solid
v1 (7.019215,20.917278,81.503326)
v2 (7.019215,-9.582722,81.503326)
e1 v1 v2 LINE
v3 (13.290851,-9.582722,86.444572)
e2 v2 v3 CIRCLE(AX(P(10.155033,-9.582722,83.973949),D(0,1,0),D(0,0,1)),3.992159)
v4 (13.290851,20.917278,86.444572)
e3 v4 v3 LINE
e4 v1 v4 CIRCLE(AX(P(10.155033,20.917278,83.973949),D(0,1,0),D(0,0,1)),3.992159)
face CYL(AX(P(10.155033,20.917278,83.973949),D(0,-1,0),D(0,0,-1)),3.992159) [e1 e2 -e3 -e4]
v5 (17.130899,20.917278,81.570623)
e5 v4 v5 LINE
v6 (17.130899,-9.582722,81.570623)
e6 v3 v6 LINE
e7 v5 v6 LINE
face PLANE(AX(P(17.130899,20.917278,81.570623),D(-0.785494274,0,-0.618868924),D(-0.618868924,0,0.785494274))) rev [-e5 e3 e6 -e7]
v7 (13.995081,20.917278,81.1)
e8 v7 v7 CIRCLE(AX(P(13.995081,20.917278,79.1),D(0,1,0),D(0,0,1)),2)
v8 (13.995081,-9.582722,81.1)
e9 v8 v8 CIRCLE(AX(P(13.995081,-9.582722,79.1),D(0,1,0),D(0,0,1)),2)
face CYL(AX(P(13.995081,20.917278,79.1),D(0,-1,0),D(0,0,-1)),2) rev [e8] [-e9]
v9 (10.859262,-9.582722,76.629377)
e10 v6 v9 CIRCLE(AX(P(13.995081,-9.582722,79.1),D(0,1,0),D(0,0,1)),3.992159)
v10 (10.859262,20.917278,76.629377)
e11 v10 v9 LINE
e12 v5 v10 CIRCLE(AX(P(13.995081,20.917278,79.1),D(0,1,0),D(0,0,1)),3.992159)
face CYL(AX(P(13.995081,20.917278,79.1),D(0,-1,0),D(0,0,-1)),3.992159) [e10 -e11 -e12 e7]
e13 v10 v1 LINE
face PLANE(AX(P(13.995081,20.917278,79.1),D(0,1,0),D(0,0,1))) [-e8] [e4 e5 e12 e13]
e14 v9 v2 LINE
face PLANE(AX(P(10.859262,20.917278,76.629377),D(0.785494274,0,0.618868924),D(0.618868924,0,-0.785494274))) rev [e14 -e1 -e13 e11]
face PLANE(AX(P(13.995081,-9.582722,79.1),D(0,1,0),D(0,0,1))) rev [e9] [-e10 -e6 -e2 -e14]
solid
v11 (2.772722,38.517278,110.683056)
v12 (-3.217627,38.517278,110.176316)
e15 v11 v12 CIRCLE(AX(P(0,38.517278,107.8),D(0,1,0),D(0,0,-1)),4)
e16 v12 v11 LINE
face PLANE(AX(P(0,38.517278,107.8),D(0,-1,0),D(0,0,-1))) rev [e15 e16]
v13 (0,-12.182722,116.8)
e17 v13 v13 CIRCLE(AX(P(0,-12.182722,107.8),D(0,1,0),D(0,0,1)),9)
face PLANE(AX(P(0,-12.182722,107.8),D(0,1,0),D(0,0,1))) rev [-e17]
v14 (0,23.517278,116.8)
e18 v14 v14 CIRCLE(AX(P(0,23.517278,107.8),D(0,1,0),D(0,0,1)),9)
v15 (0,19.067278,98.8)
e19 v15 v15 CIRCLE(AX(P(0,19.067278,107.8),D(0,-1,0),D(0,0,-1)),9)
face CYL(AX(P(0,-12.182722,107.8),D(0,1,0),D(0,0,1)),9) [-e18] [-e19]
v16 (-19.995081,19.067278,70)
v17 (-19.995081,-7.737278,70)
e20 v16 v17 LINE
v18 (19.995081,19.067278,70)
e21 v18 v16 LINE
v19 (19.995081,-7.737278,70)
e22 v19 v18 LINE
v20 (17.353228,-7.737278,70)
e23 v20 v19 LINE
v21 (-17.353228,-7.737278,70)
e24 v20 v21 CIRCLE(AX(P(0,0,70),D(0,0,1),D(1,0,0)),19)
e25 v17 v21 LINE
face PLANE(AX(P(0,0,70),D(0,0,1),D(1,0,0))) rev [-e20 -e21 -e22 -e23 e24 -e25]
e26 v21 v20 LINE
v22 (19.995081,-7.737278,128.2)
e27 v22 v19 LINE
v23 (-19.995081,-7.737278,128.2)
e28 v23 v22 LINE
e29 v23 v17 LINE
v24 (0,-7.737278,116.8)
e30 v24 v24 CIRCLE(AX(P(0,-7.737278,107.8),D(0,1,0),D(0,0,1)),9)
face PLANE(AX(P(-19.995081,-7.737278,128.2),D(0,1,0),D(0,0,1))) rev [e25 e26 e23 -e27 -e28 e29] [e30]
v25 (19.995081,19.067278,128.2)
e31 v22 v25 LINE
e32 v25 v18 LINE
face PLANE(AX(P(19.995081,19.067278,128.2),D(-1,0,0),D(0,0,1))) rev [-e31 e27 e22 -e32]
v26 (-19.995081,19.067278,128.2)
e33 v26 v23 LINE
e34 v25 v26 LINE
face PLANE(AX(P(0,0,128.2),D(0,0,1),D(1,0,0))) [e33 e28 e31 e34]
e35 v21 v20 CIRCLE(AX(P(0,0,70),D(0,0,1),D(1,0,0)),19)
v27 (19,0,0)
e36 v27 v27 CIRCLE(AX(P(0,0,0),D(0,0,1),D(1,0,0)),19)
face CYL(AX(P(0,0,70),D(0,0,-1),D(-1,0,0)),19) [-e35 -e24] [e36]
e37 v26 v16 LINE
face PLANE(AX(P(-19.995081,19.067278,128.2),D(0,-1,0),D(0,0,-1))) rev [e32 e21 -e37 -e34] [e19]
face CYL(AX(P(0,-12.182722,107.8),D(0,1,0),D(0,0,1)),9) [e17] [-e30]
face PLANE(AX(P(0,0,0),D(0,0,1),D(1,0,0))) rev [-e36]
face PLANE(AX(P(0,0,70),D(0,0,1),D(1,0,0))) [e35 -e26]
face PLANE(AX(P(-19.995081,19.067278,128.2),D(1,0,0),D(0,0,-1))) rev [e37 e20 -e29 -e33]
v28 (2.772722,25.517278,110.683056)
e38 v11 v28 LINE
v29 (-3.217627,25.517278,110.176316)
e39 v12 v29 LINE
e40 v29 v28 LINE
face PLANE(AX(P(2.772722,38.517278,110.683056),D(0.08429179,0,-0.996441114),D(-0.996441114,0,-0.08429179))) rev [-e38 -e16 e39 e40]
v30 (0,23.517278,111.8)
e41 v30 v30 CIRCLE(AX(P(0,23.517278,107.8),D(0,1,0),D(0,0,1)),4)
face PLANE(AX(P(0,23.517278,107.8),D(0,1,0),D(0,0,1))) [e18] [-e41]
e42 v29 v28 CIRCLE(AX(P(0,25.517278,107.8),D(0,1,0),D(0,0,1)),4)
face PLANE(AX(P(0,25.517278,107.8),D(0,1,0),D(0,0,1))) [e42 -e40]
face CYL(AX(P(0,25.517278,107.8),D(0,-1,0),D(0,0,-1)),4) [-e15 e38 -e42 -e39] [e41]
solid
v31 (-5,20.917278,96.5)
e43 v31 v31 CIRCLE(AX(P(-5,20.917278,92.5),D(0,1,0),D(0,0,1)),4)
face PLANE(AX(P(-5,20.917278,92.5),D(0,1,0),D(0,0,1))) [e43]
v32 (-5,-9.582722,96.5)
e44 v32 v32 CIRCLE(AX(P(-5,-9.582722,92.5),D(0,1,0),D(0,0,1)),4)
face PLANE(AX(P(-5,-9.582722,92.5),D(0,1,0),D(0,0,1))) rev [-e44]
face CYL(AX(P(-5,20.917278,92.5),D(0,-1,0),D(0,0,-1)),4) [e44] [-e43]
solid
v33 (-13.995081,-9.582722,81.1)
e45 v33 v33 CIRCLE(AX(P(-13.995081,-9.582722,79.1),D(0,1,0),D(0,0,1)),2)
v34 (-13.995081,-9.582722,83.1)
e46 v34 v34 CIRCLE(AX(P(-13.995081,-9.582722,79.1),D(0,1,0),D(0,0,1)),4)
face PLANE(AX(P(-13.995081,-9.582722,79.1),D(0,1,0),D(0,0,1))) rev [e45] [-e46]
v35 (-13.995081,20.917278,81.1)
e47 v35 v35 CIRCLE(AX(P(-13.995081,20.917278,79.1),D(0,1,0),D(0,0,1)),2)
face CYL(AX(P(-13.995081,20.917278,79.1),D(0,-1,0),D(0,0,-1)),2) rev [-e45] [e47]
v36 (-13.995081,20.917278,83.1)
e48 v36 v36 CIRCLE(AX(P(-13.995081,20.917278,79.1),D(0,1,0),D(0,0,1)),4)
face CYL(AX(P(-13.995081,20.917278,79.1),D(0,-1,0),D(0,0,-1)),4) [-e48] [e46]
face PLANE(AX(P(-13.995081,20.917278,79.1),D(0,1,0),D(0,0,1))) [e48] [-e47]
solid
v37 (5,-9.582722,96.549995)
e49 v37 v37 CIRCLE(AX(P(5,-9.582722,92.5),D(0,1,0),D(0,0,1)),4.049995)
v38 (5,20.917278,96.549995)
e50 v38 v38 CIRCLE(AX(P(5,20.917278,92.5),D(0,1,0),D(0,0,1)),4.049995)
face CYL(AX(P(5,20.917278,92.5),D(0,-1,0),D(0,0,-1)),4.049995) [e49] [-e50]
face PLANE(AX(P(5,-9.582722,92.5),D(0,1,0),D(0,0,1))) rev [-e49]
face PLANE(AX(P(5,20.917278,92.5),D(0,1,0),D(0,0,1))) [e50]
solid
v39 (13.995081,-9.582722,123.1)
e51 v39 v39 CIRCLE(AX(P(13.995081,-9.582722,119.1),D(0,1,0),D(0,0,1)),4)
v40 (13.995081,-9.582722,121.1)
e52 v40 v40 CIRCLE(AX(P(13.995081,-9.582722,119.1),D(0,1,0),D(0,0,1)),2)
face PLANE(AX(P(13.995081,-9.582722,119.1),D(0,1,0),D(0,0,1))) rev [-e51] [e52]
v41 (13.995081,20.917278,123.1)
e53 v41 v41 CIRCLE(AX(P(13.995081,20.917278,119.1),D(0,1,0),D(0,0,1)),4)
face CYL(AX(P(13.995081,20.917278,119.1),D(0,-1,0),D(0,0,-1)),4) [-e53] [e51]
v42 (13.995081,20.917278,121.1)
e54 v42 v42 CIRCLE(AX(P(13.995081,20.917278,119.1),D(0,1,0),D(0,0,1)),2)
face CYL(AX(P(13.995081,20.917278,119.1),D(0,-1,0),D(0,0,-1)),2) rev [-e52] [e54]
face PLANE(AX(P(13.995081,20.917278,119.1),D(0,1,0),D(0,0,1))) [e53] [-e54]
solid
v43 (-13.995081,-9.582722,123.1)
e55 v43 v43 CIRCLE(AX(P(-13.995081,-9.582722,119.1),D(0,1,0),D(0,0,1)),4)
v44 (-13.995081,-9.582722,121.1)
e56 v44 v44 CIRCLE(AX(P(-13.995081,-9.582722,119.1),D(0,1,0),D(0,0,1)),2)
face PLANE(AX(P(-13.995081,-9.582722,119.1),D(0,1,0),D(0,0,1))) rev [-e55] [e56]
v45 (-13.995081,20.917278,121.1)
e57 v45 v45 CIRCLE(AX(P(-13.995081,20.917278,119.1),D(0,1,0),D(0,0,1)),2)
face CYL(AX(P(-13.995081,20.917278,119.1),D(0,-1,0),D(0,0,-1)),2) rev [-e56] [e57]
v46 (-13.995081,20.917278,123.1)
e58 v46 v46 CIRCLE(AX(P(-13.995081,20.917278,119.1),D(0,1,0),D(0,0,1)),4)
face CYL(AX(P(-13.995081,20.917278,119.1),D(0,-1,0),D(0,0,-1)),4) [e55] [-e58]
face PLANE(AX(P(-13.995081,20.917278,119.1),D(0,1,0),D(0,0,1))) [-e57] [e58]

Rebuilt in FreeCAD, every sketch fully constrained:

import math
import FreeCAD as App
import Part
import Sketcher

V = App.Vector


def add_polygon(sketch, points):
    """Adds a closed chain of lines whose ends are joined by coincident constraints."""
    first, n = sketch.GeometryCount, len(points)
    for a, b in zip(points, points[1:] + points[:1]):
        sketch.addGeometry(Part.LineSegment(App.Vector(*a, 0), App.Vector(*b, 0)), False)
    for i in range(n):
        sketch.addConstraint(Sketcher.Constraint("Coincident", first + i, 2, first + (i + 1) % n, 1))

doc = App.newDocument("Part")
body = doc.addObject("PartDesign::Body", "Body")

# Sketch on XY plane
sketch1 = body.newObject("Sketcher::SketchObject", "Sketch")
sketch1.AttachmentSupport = (doc.getObject("XY_Plane"), [""])
sketch1.MapMode = "FlatFace"
sketch1.addGeometry(Part.Circle(V(0, 0, 0), V(0, 0, 1), 19), False)
sketch1.addConstraint(Sketcher.Constraint("Coincident", 0, 3, -1, 1))
sketch1.addConstraint(Sketcher.Constraint("Diameter", 0, 38.0))
pad1 = body.newObject("PartDesign::Pad", "Pad")
pad1.Profile = sketch1
pad1.Length = 70

# Sketch on XY plane
sketch2 = body.newObject("Sketcher::SketchObject", "Sketch001")
sketch2.AttachmentSupport = (doc.getObject("XY_Plane"), [""])
sketch2.MapMode = "FlatFace"
sketch2.AttachmentOffset = App.Placement(V(0, 0, 70), App.Rotation())
add_polygon(sketch2, [(-20, 19), (-20, -8), (20, -8), (20, 19)])  # lines 0-3
sketch2.addConstraint(Sketcher.Constraint("Vertical", 0))
sketch2.addConstraint(Sketcher.Constraint("Horizontal", 1))
sketch2.addConstraint(Sketcher.Constraint("Vertical", 2))
sketch2.addConstraint(Sketcher.Constraint("Horizontal", 3))
sketch2.addConstraint(Sketcher.Constraint("DistanceX", 1, 1, 1, 2, 39.990162))
sketch2.addConstraint(Sketcher.Constraint("DistanceY", 0, 2, 0, 1, 26.804556))
sketch2.addConstraint(Sketcher.Constraint("DistanceX", 0, 2, -1, 1, 19.995081))
sketch2.addConstraint(Sketcher.Constraint("DistanceY", -1, 1, 2, 2, 19.067278))
pad2 = body.newObject("PartDesign::Pad", "Pad001")
pad2.Profile = sketch2
pad2.Length = 58.2
body2 = doc.addObject("PartDesign::Body", "Body001")

# Sketch on XZ plane
sketch3 = body2.newObject("Sketcher::SketchObject", "Sketch002")
sketch3.AttachmentSupport = (doc.getObject("XZ_Plane001"), [""])
sketch3.MapMode = "FlatFace"
sketch3.AttachmentOffset = App.Placement(V(0, 0, -19.067278), App.Rotation())
sketch3.addGeometry(Part.Circle(V(14, 119.1, 0), V(0, 0, 1), 4), False)
sketch3.addGeometry(Part.Circle(V(14, 119.1, 0), V(0, 0, 1), 2), False)
sketch3.addConstraint(Sketcher.Constraint("Coincident", 1, 3, 0, 3))
sketch3.addConstraint(Sketcher.Constraint("Diameter", 0, 8.0))
sketch3.addConstraint(Sketcher.Constraint("Diameter", 1, 4.0))
sketch3.addConstraint(Sketcher.Constraint("DistanceY", -1, 1, 0, 3, 119.1))
sketch3.addConstraint(Sketcher.Constraint("DistanceX", -1, 1, 0, 3, 13.995081))
pad3 = body2.newObject("PartDesign::Pad", "Pad002")
pad3.Profile = sketch3
pad3.Type = "TwoLengths"
pad3.Length = 1.85
pad3.Length2 = 28.65
pad3.Reversed = True
body3 = doc.addObject("PartDesign::Body", "Body002")

# Sketch on XZ plane
sketch4 = body3.newObject("Sketcher::SketchObject", "Sketch003")
sketch4.AttachmentSupport = (doc.getObject("XZ_Plane002"), [""])
sketch4.MapMode = "FlatFace"
sketch4.AttachmentOffset = App.Placement(V(0, 0, -19.067278), App.Rotation())
sketch4.addGeometry(Part.Circle(V(-14, 119.1, 0), V(0, 0, 1), 4), False)
sketch4.addGeometry(Part.Circle(V(-14, 119.1, 0), V(0, 0, 1), 2), False)
sketch4.addConstraint(Sketcher.Constraint("Coincident", 1, 3, 0, 3))
sketch4.addConstraint(Sketcher.Constraint("Diameter", 0, 8.0))
sketch4.addConstraint(Sketcher.Constraint("Diameter", 1, 4.0))
sketch4.addConstraint(Sketcher.Constraint("DistanceY", -1, 1, 0, 3, 119.1))
sketch4.addConstraint(Sketcher.Constraint("DistanceX", 0, 3, -1, 1, 13.995081))
pad4 = body3.newObject("PartDesign::Pad", "Pad003")
pad4.Profile = sketch4
pad4.Type = "TwoLengths"
pad4.Length = 1.85
pad4.Length2 = 28.65
pad4.Reversed = True
body4 = doc.addObject("PartDesign::Body", "Body003")

# Sketch on XZ plane
sketch5 = body4.newObject("Sketcher::SketchObject", "Sketch004")
sketch5.AttachmentSupport = (doc.getObject("XZ_Plane003"), [""])
sketch5.MapMode = "FlatFace"
sketch5.AttachmentOffset = App.Placement(V(0, 0, -19.067278), App.Rotation())
sketch5.addGeometry(Part.Circle(V(-14, 79.1, 0), V(0, 0, 1), 4), False)
sketch5.addGeometry(Part.Circle(V(-14, 79.1, 0), V(0, 0, 1), 2), False)
sketch5.addConstraint(Sketcher.Constraint("Coincident", 1, 3, 0, 3))
sketch5.addConstraint(Sketcher.Constraint("Diameter", 0, 8.0))
sketch5.addConstraint(Sketcher.Constraint("Diameter", 1, 4.0))
sketch5.addConstraint(Sketcher.Constraint("DistanceY", -1, 1, 0, 3, 79.1))
sketch5.addConstraint(Sketcher.Constraint("DistanceX", 0, 3, -1, 1, 13.995081))
pad5 = body4.newObject("PartDesign::Pad", "Pad004")
pad5.Profile = sketch5
pad5.Type = "TwoLengths"
pad5.Length = 1.85
pad5.Length2 = 28.65
pad5.Reversed = True
body5 = doc.addObject("PartDesign::Body", "Body004")

# Sketch on XZ plane
sketch6 = body5.newObject("Sketcher::SketchObject", "Sketch005")
sketch6.AttachmentSupport = (doc.getObject("XZ_Plane004"), [""])
sketch6.MapMode = "FlatFace"
sketch6.AttachmentOffset = App.Placement(V(0, 0, -19.067278), App.Rotation())
sketch6.addGeometry(Part.Circle(V(0, 108, 0), V(0, 0, 1), 9), False)
sketch6.addConstraint(Sketcher.Constraint("PointOnObject", 0, 3, -2))
sketch6.addConstraint(Sketcher.Constraint("Diameter", 0, 18.0))
sketch6.addConstraint(Sketcher.Constraint("DistanceY", -1, 1, 0, 3, 107.8))
pad6 = body5.newObject("PartDesign::Pad", "Pad005")
pad6.Profile = sketch6
pad6.Type = "TwoLengths"
pad6.Length = 1.85
pad6.Length2 = 28.65
pad6.Reversed = True
body6 = doc.addObject("PartDesign::Body", "Body005")

# Sketch on XZ plane
sketch7 = body6.newObject("Sketcher::SketchObject", "Sketch006")
sketch7.AttachmentSupport = (doc.getObject("XZ_Plane005"), [""])
sketch7.MapMode = "FlatFace"
sketch7.AttachmentOffset = App.Placement(V(0, 0, -19.067278), App.Rotation())
sketch7.addGeometry(Part.Circle(V(5, 92.5, 0), V(0, 0, 1), 4), False)
sketch7.addConstraint(Sketcher.Constraint("DistanceX", -1, 1, 0, 3, 5.0))
sketch7.addConstraint(Sketcher.Constraint("DistanceY", -1, 1, 0, 3, 92.5))
sketch7.addConstraint(Sketcher.Constraint("Diameter", 0, 8.09999))
pad7 = body6.newObject("PartDesign::Pad", "Pad006")
pad7.Profile = sketch7
pad7.Type = "TwoLengths"
pad7.Length = 1.85
pad7.Length2 = 28.65
pad7.Reversed = True
body7 = doc.addObject("PartDesign::Body", "Body006")

# Sketch on XZ plane
sketch8 = body7.newObject("Sketcher::SketchObject", "Sketch007")
sketch8.AttachmentSupport = (doc.getObject("XZ_Plane006"), [""])
sketch8.MapMode = "FlatFace"
sketch8.AttachmentOffset = App.Placement(V(0, 0, -19.067278), App.Rotation())
sketch8.addGeometry(Part.Circle(V(-5, 92.5, 0), V(0, 0, 1), 4), False)
sketch8.addConstraint(Sketcher.Constraint("Diameter", 0, 8.0))
sketch8.addConstraint(Sketcher.Constraint("DistanceX", 0, 3, -1, 1, 5.0))
sketch8.addConstraint(Sketcher.Constraint("DistanceY", -1, 1, 0, 3, 92.5))
pad8 = body7.newObject("PartDesign::Pad", "Pad007")
pad8.Profile = sketch8
pad8.Type = "TwoLengths"
pad8.Length = 1.85
pad8.Length2 = 28.65
pad8.Reversed = True
body8 = doc.addObject("PartDesign::Body", "Body007")

# Sketch on XZ plane
sketch9 = body8.newObject("Sketcher::SketchObject", "Sketch008")
sketch9.AttachmentSupport = (doc.getObject("XZ_Plane007"), [""])
sketch9.MapMode = "FlatFace"
sketch9.AttachmentOffset = App.Placement(V(0, 0, -19.067278), App.Rotation())
sketch9.addGeometry(Part.LineSegment(V(13.3, 86.4, 0), V(17.1, 81.6, 0)), False)
sketch9.addGeometry(Part.ArcOfCircle(Part.Circle(V(14, 79.1, 0), V(0, 0, 1), 4), math.radians(-142), math.radians(38)), False)
sketch9.addGeometry(Part.LineSegment(V(10.9, 76.6, 0), V(7, 81.5, 0)), False)
sketch9.addGeometry(Part.ArcOfCircle(Part.Circle(V(10.2, 84, 0), V(0, 0, 1), 4), math.radians(38), math.radians(218)), False)
sketch9.addGeometry(Part.Circle(V(14, 79.1, 0), V(0, 0, 1), 2), False)
sketch9.addConstraint(Sketcher.Constraint("Tangent", 0, 2, 1, 2))
sketch9.addConstraint(Sketcher.Constraint("Tangent", 1, 1, 2, 1))
sketch9.addConstraint(Sketcher.Constraint("Tangent", 2, 2, 3, 2))
sketch9.addConstraint(Sketcher.Constraint("Tangent", 3, 1, 0, 1))
sketch9.addConstraint(Sketcher.Constraint("Coincident", 4, 3, 1, 3))
sketch9.addConstraint(Sketcher.Constraint("Equal", 1, 3))
sketch9.addConstraint(Sketcher.Constraint("Diameter", 4, 4.0))
sketch9.addConstraint(Sketcher.Constraint("DistanceY", -1, 1, 1, 3, 79.1))
sketch9.addConstraint(Sketcher.Constraint("Radius", 1, 3.992159))
sketch9.addConstraint(Sketcher.Constraint("DistanceX", -1, 1, 0, 2, 17.130899))
sketch9.addConstraint(Sketcher.Constraint("DistanceX", -1, 1, 1, 3, 13.99508))
sketch9.addConstraint(Sketcher.Constraint("DistanceY", -1, 1, 3, 3, 83.973949))
pad9 = body8.newObject("PartDesign::Pad", "Pad008")
pad9.Profile = sketch9
pad9.Type = "TwoLengths"
pad9.Length = 1.85
pad9.Length2 = 28.65
pad9.Reversed = True
doc.recompute()

boolean = body.newObject("PartDesign::Boolean", "Boolean")
boolean.Type = "Fuse"
boolean.addObjects([body5])

# Sketch on XZ plane
sketch10 = body.newObject("Sketcher::SketchObject", "Sketch009")
sketch10.AttachmentSupport = (doc.getObject("XZ_Plane"), [""])
sketch10.MapMode = "FlatFace"
sketch10.AttachmentOffset = App.Placement(V(0, 0, -20.917278), App.Rotation())
sketch10.addGeometry(Part.Circle(V(0, 108, 0), V(0, 0, 1), 9), False)
sketch10.addConstraint(Sketcher.Constraint("PointOnObject", 0, 3, -2))
sketch10.addConstraint(Sketcher.Constraint("Diameter", 0, 18.0))
sketch10.addConstraint(Sketcher.Constraint("DistanceY", -1, 1, 0, 3, 107.8))
pad10 = body.newObject("PartDesign::Pad", "Pad009")
pad10.Profile = sketch10
pad10.Type = "TwoLengths"
pad10.Length = 2.6
pad10.Length2 = 33.1
pad10.Reversed = True

# Sketch on XZ plane
sketch11 = body.newObject("Sketcher::SketchObject", "Sketch010")
sketch11.AttachmentSupport = (doc.getObject("XZ_Plane"), [""])
sketch11.MapMode = "FlatFace"
sketch11.AttachmentOffset = App.Placement(V(0, 0, -23.517278), App.Rotation())
sketch11.addGeometry(Part.Circle(V(0, 107.8, 0), V(0, 0, 1), 4), False)
sketch11.addConstraint(Sketcher.Constraint("PointOnObject", 0, 3, -2))
sketch11.addConstraint(Sketcher.Constraint("Diameter", 0, 8.0))
sketch11.addConstraint(Sketcher.Constraint("DistanceY", -1, 1, 0, 3, 107.8))
pad11 = body.newObject("PartDesign::Pad", "Pad010")
pad11.Profile = sketch11
pad11.Length = 2
pad11.Reversed = True

# Sketch on XZ plane
sketch12 = body.newObject("Sketcher::SketchObject", "Sketch011")
sketch12.AttachmentSupport = (doc.getObject("XZ_Plane"), [""])
sketch12.MapMode = "FlatFace"
sketch12.AttachmentOffset = App.Placement(V(0, 0, -25.517278), App.Rotation())
sketch12.addGeometry(Part.LineSegment(V(-3.2, 110.2, 0), V(2.8, 110.7, 0)), False)
sketch12.addGeometry(Part.ArcOfCircle(Part.Circle(V(0, 107.8, 0), V(0, 0, 1), 4), math.radians(144), math.radians(406)), False)
sketch12.addConstraint(Sketcher.Constraint("Coincident", 0, 1, 1, 1))
sketch12.addConstraint(Sketcher.Constraint("Coincident", 1, 2, 0, 2))
sketch12.addConstraint(Sketcher.Constraint("PointOnObject", 1, 3, -2))
sketch12.addConstraint(Sketcher.Constraint("Radius", 1, 4.0))
sketch12.addConstraint(Sketcher.Constraint("DistanceY", -1, 1, 1, 3, 107.8))
sketch12.addConstraint(Sketcher.Constraint("DistanceX", 0, 1, 1, 2, 5.990349))
sketch12.addConstraint(Sketcher.Constraint("DistanceY", 0, 1, 1, 2, 0.50674))
pad12 = body.newObject("PartDesign::Pad", "Pad011")
pad12.Profile = sketch12
pad12.Length = 13
pad12.Reversed = True

doc.recompute()
